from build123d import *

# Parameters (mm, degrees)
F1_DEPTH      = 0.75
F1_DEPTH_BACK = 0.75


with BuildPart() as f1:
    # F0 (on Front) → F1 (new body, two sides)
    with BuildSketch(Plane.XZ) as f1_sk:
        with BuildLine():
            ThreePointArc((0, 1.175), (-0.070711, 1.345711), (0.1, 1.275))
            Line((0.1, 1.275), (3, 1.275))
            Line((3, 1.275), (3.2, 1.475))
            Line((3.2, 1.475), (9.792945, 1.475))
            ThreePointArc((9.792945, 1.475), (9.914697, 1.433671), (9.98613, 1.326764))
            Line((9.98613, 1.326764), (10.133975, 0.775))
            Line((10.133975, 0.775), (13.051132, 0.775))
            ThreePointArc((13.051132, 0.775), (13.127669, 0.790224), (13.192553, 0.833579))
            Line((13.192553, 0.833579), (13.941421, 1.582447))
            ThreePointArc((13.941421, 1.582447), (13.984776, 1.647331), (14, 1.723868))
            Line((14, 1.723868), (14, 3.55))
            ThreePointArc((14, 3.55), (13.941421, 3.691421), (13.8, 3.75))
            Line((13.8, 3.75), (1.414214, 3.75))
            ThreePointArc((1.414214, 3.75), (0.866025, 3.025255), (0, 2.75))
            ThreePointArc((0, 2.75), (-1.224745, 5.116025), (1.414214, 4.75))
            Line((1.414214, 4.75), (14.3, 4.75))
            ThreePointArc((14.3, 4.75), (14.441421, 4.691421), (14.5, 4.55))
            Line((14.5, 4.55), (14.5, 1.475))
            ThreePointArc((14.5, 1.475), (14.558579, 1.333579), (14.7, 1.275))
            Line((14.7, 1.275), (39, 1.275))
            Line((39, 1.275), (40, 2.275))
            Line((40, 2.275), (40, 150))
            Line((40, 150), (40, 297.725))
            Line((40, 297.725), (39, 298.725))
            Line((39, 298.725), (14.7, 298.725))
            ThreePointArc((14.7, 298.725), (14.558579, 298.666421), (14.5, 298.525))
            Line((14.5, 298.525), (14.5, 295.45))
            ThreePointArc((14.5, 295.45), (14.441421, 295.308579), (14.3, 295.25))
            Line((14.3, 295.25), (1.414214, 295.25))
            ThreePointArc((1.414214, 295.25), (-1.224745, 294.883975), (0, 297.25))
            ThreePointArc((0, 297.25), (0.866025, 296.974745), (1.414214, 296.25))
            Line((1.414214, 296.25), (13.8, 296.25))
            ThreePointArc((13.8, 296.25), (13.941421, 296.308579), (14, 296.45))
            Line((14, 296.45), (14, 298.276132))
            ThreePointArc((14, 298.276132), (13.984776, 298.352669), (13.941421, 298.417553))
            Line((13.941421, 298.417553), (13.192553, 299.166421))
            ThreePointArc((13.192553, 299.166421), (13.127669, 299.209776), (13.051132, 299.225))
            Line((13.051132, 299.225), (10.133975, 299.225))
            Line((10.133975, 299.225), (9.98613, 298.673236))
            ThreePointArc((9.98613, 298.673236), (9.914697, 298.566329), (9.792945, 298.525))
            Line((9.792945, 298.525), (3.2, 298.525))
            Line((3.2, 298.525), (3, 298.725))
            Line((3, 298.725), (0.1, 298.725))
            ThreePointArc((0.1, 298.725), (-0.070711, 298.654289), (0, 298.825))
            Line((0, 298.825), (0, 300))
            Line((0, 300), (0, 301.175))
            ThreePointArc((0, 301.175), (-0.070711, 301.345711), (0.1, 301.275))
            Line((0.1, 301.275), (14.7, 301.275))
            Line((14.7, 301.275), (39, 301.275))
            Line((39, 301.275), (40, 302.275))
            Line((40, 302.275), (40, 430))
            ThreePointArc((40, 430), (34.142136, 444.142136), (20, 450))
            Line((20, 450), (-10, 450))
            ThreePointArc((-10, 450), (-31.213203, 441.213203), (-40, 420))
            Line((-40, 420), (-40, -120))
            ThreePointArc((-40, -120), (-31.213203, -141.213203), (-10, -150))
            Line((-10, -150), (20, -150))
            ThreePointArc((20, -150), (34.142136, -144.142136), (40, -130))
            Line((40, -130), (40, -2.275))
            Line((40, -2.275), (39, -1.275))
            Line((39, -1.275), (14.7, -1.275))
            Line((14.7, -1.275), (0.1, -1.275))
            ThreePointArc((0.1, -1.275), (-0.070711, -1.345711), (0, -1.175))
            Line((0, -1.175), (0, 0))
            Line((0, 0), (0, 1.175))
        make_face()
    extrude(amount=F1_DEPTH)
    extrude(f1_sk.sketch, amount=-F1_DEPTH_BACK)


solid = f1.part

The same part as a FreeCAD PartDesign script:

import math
import FreeCAD as App
import Part
import Sketcher
from FreeCAD import Vector

doc = App.newDocument("Part")
params = doc.addObject("Spreadsheet::Sheet", "Params")
for row, (alias, value) in enumerate([
    ("sketch1_radius", "19.999999 mm"),
    ("sketch1_radius2", "30.000001 mm"),
    ("sketch1_radius3", "0.1 mm"),
    ("sketch1_radius4", "0.199999 mm"),
    ("sketch1_radius5", "1.500002 mm"),
    ("pad1_length", "0.75 mm"),
    ("pad1_length2", "0.75 mm"),
], start=1):
    params.set(f"A{row}", alias)
    params.set(f"B{row}", "=" + value)
    params.setAlias(f"B{row}", alias)

body = doc.addObject("PartDesign::Body", "Body")

sketch1 = doc.addObject("Sketcher::SketchObject", "Sketch")
body.addObject(sketch1)
sketch1.AttachmentSupport = (doc.XZ_Plane, [""])
sketch1.MapMode = "FlatFace"
sketch1.addGeometry([
    Part.ArcOfCircle(Part.Circle(Vector(0, 1.275, 0), Vector(0, 0, 1), 0.1), math.radians(-0.000108), math.radians(270.000108)),
    Part.LineSegment(Vector(0.1, 1.275, 0), Vector(3, 1.275, 0)),
    Part.LineSegment(Vector(3, 1.275, 0), Vector(3.2, 1.475, 0)),
    Part.LineSegment(Vector(3.2, 1.475, 0), Vector(9.792945, 1.475, 0)),
    Part.ArcOfCircle(Part.Circle(Vector(9.792945, 1.275001, 0), Vector(0, 0, 1), 0.199999), math.radians(14.999923), math.radians(90.000101)),
    Part.LineSegment(Vector(9.98613, 1.326764, 0), Vector(10.133975, 0.775, 0)),
    Part.LineSegment(Vector(10.133975, 0.775, 0), Vector(13.051132, 0.775, 0)),
    Part.ArcOfCircle(Part.Circle(Vector(13.051134, 0.974994, 0), Vector(0, 0, 1), 0.199994), math.radians(-90.000486), math.radians(-44.999166)),
    Part.LineSegment(Vector(13.192553, 0.833579, 0), Vector(13.941421, 1.582447, 0)),
    Part.ArcOfCircle(Part.Circle(Vector(13.800006, 1.723866, 0), Vector(0, 0, 1), 0.199994), math.radians(-45.000834), math.radians(0.000486)),
    Part.LineSegment(Vector(14, 1.723868, 0), Vector(14, 3.55, 0)),
    Part.ArcOfCircle(Part.Circle(Vector(13.799999, 3.549999, 0), Vector(0, 0, 1), 0.200001), math.radians(0.000348), math.radians(89.999652)),
    Part.LineSegment(Vector(13.8, 3.75, 0), Vector(1.414214, 3.75, 0)),
    Part.ArcOfCircle(Part.Circle(Vector(-0.000001, 4.250002, 0), Vector(0, 0, 1), 1.500002), math.radians(-89.999971), math.radians(-19.471266)),
    Part.ArcOfCircle(Part.Circle(Vector(0, 4.25, 0), Vector(0, 0, 1), 1.5), math.radians(19.471216), math.radians(269.999988)),
    Part.LineSegment(Vector(1.414214, 4.75, 0), Vector(14.3, 4.75, 0)),
    Part.ArcOfCircle(Part.Circle(Vector(14.299999, 4.549999, 0), Vector(0, 0, 1), 0.200001), math.radians(0.000348), math.radians(89.999652)),
    Part.LineSegment(Vector(14.5, 4.55, 0), Vector(14.5, 1.475, 0)),
    Part.ArcOfCircle(Part.Circle(Vector(14.700001, 1.475001, 0), Vector(0, 0, 1), 0.200001), math.radians(-179.999652), math.radians(-90.000348)),
    Part.LineSegment(Vector(14.7, 1.275, 0), Vector(39, 1.275, 0)),
    Part.LineSegment(Vector(39, 1.275, 0), Vector(40, 2.275, 0)),
    Part.LineSegment(Vector(40, 2.275, 0), Vector(40, 297.725, 0)),
    Part.LineSegment(Vector(40, 297.725, 0), Vector(39, 298.725, 0)),
    Part.LineSegment(Vector(39, 298.725, 0), Vector(14.7, 298.725, 0)),
    Part.ArcOfCircle(Part.Circle(Vector(14.700001, 298.524999, 0), Vector(0, 0, 1), 0.200001), math.radians(90.000348), math.radians(179.999652)),
    Part.LineSegment(Vector(14.5, 298.525, 0), Vector(14.5, 295.45, 0)),
    Part.ArcOfCircle(Part.Circle(Vector(14.299999, 295.450001, 0), Vector(0, 0, 1), 0.200001), math.radians(-89.999652), math.radians(-0.000348)),
    Part.LineSegment(Vector(14.3, 295.25, 0), Vector(1.414214, 295.25, 0)),
    Part.ArcOfCircle(Part.Circle(Vector(0, 295.75, 0), Vector(0, 0, 1), 1.5), math.radians(90.000012), math.radians(340.528784)),
    Part.ArcOfCircle(Part.Circle(Vector(-0.000001, 295.749998, 0), Vector(0, 0, 1), 1.500002), math.radians(19.471266), math.radians(89.999971)),
    Part.LineSegment(Vector(1.414214, 296.25, 0), Vector(13.8, 296.25, 0)),
    Part.ArcOfCircle(Part.Circle(Vector(13.799999, 296.450001, 0), Vector(0, 0, 1), 0.200001), math.radians(-89.999652), math.radians(-0.000348)),
    Part.LineSegment(Vector(14, 296.45, 0), Vector(14, 298.276132, 0)),
    Part.ArcOfCircle(Part.Circle(Vector(13.800006, 298.276134, 0), Vector(0, 0, 1), 0.199994), math.radians(-0.000486), math.radians(45.000834)),
    Part.LineSegment(Vector(13.941421, 298.417553, 0), Vector(13.192553, 299.166421, 0)),
    Part.ArcOfCircle(Part.Circle(Vector(13.051134, 299.025006, 0), Vector(0, 0, 1), 0.199994), math.radians(44.999166), math.radians(90.000486)),
    Part.LineSegment(Vector(13.051132, 299.225, 0), Vector(10.133975, 299.225, 0)),
    Part.LineSegment(Vector(10.133975, 299.225, 0), Vector(9.98613, 298.673236, 0)),
    Part.ArcOfCircle(Part.Circle(Vector(9.792945, 298.724999, 0), Vector(0, 0, 1), 0.199999), math.radians(-90.000101), math.radians(-14.999923)),
    Part.LineSegment(Vector(9.792945, 298.525, 0), Vector(3.2, 298.525, 0)),
    Part.LineSegment(Vector(3.2, 298.525, 0), Vector(3, 298.725, 0)),
    Part.LineSegment(Vector(3, 298.725, 0), Vector(0.1, 298.725, 0)),
    Part.ArcOfCircle(Part.Circle(Vector(0, 298.725, 0), Vector(0, 0, 1), 0.1), math.radians(89.999892), math.radians(360.000108)),
    Part.LineSegment(Vector(0, 298.825, 0), Vector(0, 301.175, 0)),
    Part.ArcOfCircle(Part.Circle(Vector(0, 301.275, 0), Vector(0, 0, 1), 0.1), math.radians(-0.000108), math.radians(270.000108)),
    Part.LineSegment(Vector(0.1, 301.275, 0), Vector(39, 301.275, 0)),
    Part.LineSegment(Vector(39, 301.275, 0), Vector(40, 302.275, 0)),
    Part.LineSegment(Vector(40, 302.275, 0), Vector(40, 430, 0)),
    Part.ArcOfCircle(Part.Circle(Vector(20.000001, 430.000001, 0), Vector(0, 0, 1), 19.999999), math.radians(-0.000004), math.radians(90.000004)),
    Part.LineSegment(Vector(20, 450, 0), Vector(-10, 450, 0)),
    Part.ArcOfCircle(Part.Circle(Vector(-9.999999, 419.999999, 0), Vector(0, 0, 1), 30.000001), math.radians(90.000003), math.radians(179.999997)),
    Part.LineSegment(Vector(-40, 420, 0), Vector(-40, -120, 0)),
    Part.ArcOfCircle(Part.Circle(Vector(-9.999999, -119.999999, 0), Vector(0, 0, 1), 30.000001), math.radians(-179.999997), math.radians(-90.000003)),
    Part.LineSegment(Vector(-10, -150, 0), Vector(20, -150, 0)),
    Part.ArcOfCircle(Part.Circle(Vector(20.000001, -130.000001, 0), Vector(0, 0, 1), 19.999999), math.radians(-90.000004), math.radians(0.000004)),
    Part.LineSegment(Vector(40, -130, 0), Vector(40, -2.275, 0)),
    Part.LineSegment(Vector(40, -2.275, 0), Vector(39, -1.275, 0)),
    Part.LineSegment(Vector(39, -1.275, 0), Vector(0.1, -1.275, 0)),
    Part.ArcOfCircle(Part.Circle(Vector(0, -1.275, 0), Vector(0, 0, 1), 0.1), math.radians(89.999892), math.radians(360.000108)),
    Part.LineSegment(Vector(0, -1.175, 0), Vector(0, 1.175, 0)),
], False)
sketch1.addConstraint([
    Sketcher.Constraint("Coincident", 0, 1, 1, 1),
    Sketcher.Constraint("Coincident", 1, 2, 2, 1),
    Sketcher.Constraint("Coincident", 2, 2, 3, 1),
    Sketcher.Constraint("Tangent", 3, 2, 4, 2),
    Sketcher.Constraint("Tangent", 4, 1, 5, 1),
    Sketcher.Constraint("Coincident", 5, 2, 6, 1),
    Sketcher.Constraint("Coincident", 6, 2, 7, 1),
    Sketcher.Constraint("Coincident", 7, 2, 8, 1),
    Sketcher.Constraint("Coincident", 8, 2, 9, 1),
    Sketcher.Constraint("Coincident", 9, 2, 10, 1),
    Sketcher.Constraint("Coincident", 10, 2, 11, 1),
    Sketcher.Constraint("Coincident", 11, 2, 12, 1),
    Sketcher.Constraint("Coincident", 12, 2, 13, 2),
    Sketcher.Constraint("Tangent", 13, 1, 14, 2),
    Sketcher.Constraint("Coincident", 14, 1, 15, 1),
    Sketcher.Constraint("Coincident", 15, 2, 16, 2),
    Sketcher.Constraint("Coincident", 16, 1, 17, 1),
    Sketcher.Constraint("Coincident", 17, 2, 18, 1),
    Sketcher.Constraint("Coincident", 18, 2, 19, 1),
    Sketcher.Constraint("Coincident", 19, 2, 20, 1),
    Sketcher.Constraint("Coincident", 20, 2, 21, 1),
    Sketcher.Constraint("Coincident", 21, 2, 22, 1),
    Sketcher.Constraint("Coincident", 22, 2, 23, 1),
    Sketcher.Constraint("Coincident", 23, 2, 24, 1),
    Sketcher.Constraint("Coincident", 24, 2, 25, 1),
    Sketcher.Constraint("Coincident", 25, 2, 26, 2),
    Sketcher.Constraint("Coincident", 26, 1, 27, 1),
    Sketcher.Constraint("Coincident", 27, 2, 28, 2),
    Sketcher.Constraint("Tangent", 28, 1, 29, 2),
    Sketcher.Constraint("Coincident", 29, 1, 30, 1),
    Sketcher.Constraint("Coincident", 30, 2, 31, 1),
    Sketcher.Constraint("Coincident", 31, 2, 32, 1),
    Sketcher.Constraint("Coincident", 32, 2, 33, 1),
    Sketcher.Constraint("Coincident", 33, 2, 34, 1),
    Sketcher.Constraint("Coincident", 34, 2, 35, 1),
    Sketcher.Constraint("Coincident", 35, 2, 36, 1),
    Sketcher.Constraint("Coincident", 36, 2, 37, 1),
    Sketcher.Constraint("Tangent", 37, 2, 38, 2),
    Sketcher.Constraint("Tangent", 38, 1, 39, 1),
    Sketcher.Constraint("Coincident", 39, 2, 40, 1),
    Sketcher.Constraint("Coincident", 40, 2, 41, 1),
    Sketcher.Constraint("Coincident", 41, 2, 42, 2),
    Sketcher.Constraint("Coincident", 42, 1, 43, 1),
    Sketcher.Constraint("Coincident", 43, 2, 44, 2),
    Sketcher.Constraint("Coincident", 44, 1, 45, 1),
    Sketcher.Constraint("Coincident", 45, 2, 46, 1),
    Sketcher.Constraint("Coincident", 46, 2, 47, 1),
    Sketcher.Constraint("Tangent", 47, 2, 48, 1),
    Sketcher.Constraint("Tangent", 48, 2, 49, 1),
    Sketcher.Constraint("Tangent", 49, 2, 50, 1),
    Sketcher.Constraint("Tangent", 50, 2, 51, 1),
    Sketcher.Constraint("Tangent", 51, 2, 52, 1),
    Sketcher.Constraint("Tangent", 52, 2, 53, 1),
    Sketcher.Constraint("Tangent", 53, 2, 54, 1),
    Sketcher.Constraint("Tangent", 54, 2, 55, 1),
    Sketcher.Constraint("Coincident", 55, 2, 56, 1),
    Sketcher.Constraint("Coincident", 56, 2, 57, 1),
    Sketcher.Constraint("Coincident", 57, 2, 58, 2),
    Sketcher.Constraint("Coincident", 58, 1, 59, 1),
    Sketcher.Constraint("Coincident", 59, 2, 0, 2),
    Sketcher.Constraint("Horizontal", 1),
    Sketcher.Constraint("Horizontal", 3),
    Sketcher.Constraint("Horizontal", 6),
    Sketcher.Constraint("Vertical", 10),
    Sketcher.Constraint("Horizontal", 12),
    Sketcher.Constraint("Horizontal", 15),
    Sketcher.Constraint("Vertical", 17),
    Sketcher.Constraint("Horizontal", 19),
    Sketcher.Constraint("Vertical", 21),
    Sketcher.Constraint("Horizontal", 23),
    Sketcher.Constraint("Vertical", 25),
    Sketcher.Constraint("Horizontal", 27),
    Sketcher.Constraint("Horizontal", 30),
    Sketcher.Constraint("Vertical", 32),
    Sketcher.Constraint("Horizontal", 36),
    Sketcher.Constraint("Horizontal", 39),
    Sketcher.Constraint("Horizontal", 41),
    Sketcher.Constraint("Vertical", 43),
    Sketcher.Constraint("Horizontal", 45),
    Sketcher.Constraint("Vertical", 47),
    Sketcher.Constraint("Horizontal", 49),
    Sketcher.Constraint("Vertical", 51),
    Sketcher.Constraint("Horizontal", 53),
    Sketcher.Constraint("Vertical", 55),
    Sketcher.Constraint("Horizontal", 57),
    Sketcher.Constraint("Vertical", 59),
    Sketcher.Constraint("Equal", 7, 9),
    Sketcher.Constraint("Equal", 4, 11),
    Sketcher.Constraint("Equal", 13, 14),
    Sketcher.Constraint("Equal", 11, 16),
    Sketcher.Constraint("Equal", 16, 18),
    Sketcher.Constraint("Equal", 18, 24),
    Sketcher.Constraint("Equal", 24, 26),
    Sketcher.Constraint("Equal", 14, 28),
    Sketcher.Constraint("Equal", 28, 29),
    Sketcher.Constraint("Equal", 26, 31),
    Sketcher.Constraint("Equal", 9, 33),
    Sketcher.Constraint("Equal", 33, 35),
    Sketcher.Constraint("Equal", 31, 38),
    Sketcher.Constraint("Equal", 0, 42),
    Sketcher.Constraint("Equal", 42, 44),
    Sketcher.Constraint("Equal", 50, 52),
    Sketcher.Constraint("Equal", 48, 54),
    Sketcher.Constraint("Equal", 44, 58),
    Sketcher.Constraint("Symmetric", 0, 3, 58, 3, -1, 1),
    Sketcher.Constraint("Symmetric", 20, 2, 55, 2, -1),
    Sketcher.Constraint("Symmetric", 19, 2, 56, 2, -1),
    Sketcher.Constraint("Symmetric", 0, 1, 57, 2, -1),
    Sketcher.Constraint("PointOnObject", 13, 3, -2),
    Sketcher.Constraint("PointOnObject", 28, 3, -2),
    Sketcher.Constraint("PointOnObject", 42, 3, -2),
    Sketcher.Constraint("PointOnObject", 44, 3, -2),
    Sketcher.Constraint("PointOnObject", 13, 1, -2),
    Sketcher.Constraint("PointOnObject", 28, 1, -2),
    Sketcher.Constraint("PointOnObject", 42, 1, -2),
    Sketcher.Constraint("PointOnObject", 58, 1, -2),
    Sketcher.Constraint("Parallel", 2, 8),
    Sketcher.Constraint("Parallel", 8, 20),
    Sketcher.Constraint("Perpendicular", 20, 22),
    Sketcher.Constraint("Parallel", 22, 34),
    Sketcher.Constraint("Parallel", 34, 40),
    Sketcher.Constraint("Perpendicular", 40, 46),
    Sketcher.Constraint("Perpendicular", 46, 56),
    Sketcher.Constraint("Horizontal", 0, 3, 4, 3),
    Sketcher.Constraint("Horizontal", 38, 3, 42, 3),
    Sketcher.Constraint("Horizontal", 4, 3, 0, 1),
    Sketcher.Constraint("Horizontal", 11, 3, 10, 2),
    Sketcher.Constraint("Horizontal", 3, 2, 17, 2),
    Sketcher.Constraint("Horizontal", 42, 3, 22, 2),
    Sketcher.Constraint("Horizontal", 26, 3, 25, 2),
    Sketcher.Constraint("Horizontal", 33, 3, 32, 2),
    Sketcher.Constraint("Horizontal", 24, 2, 38, 1),
    Sketcher.Constraint("Horizontal", 23, 2, 40, 2),
    Sketcher.Constraint("Vertical", 18, 3, 24, 3),
    Sketcher.Constraint("Vertical", 11, 3, 31, 3),
    Sketcher.Constraint("Vertical", 7, 3, 35, 3),
    Sketcher.Constraint("Vertical", 4, 3, 38, 3),
    Sketcher.Constraint("Vertical", 48, 3, 54, 3),
    Sketcher.Constraint("Vertical", 35, 3, 6, 2),
    Sketcher.Constraint("Vertical", 31, 3, 11, 2),
    Sketcher.Constraint("Vertical", 12, 2, 14, 1),
    Sketcher.Constraint("Vertical", 26, 3, 15, 2),
    Sketcher.Constraint("Vertical", 24, 3, 18, 2),
    Sketcher.Constraint("Vertical", 19, 2, 22, 2),
    Sketcher.Constraint("Vertical", 18, 2, 23, 2),
    Sketcher.Constraint("Vertical", 15, 2, 26, 1),
    Sketcher.Constraint("Vertical", 14, 1, 27, 2),
    Sketcher.Constraint("Vertical", 27, 2, 29, 1),
    Sketcher.Constraint("Vertical", 11, 2, 30, 2),
    Sketcher.Constraint("Vertical", 8, 2, 33, 2),
    Sketcher.Constraint("Vertical", 7, 2, 34, 2),
    Sketcher.Constraint("Vertical", 6, 2, 35, 2),
    Sketcher.Constraint("Vertical", 5, 2, 36, 2),
    Sketcher.Constraint("Vertical", 4, 1, 37, 2),
    Sketcher.Constraint("Vertical", 2, 2, 39, 2),
    Sketcher.Constraint("Vertical", 22, 2, 45, 2),
    Sketcher.Constraint("Equal", 17, 25),
    Sketcher.Constraint("Equal", 10, 32),
    Sketcher.Constraint("Equal", 47, 55),
    Sketcher.Constraint("Equal", 43, 59),
    Sketcher.Constraint("Radius", 48, 19.999999),
    Sketcher.Constraint("Radius", 50, 30.000001),
    Sketcher.Constraint("Radius", 0, 0.1),
    Sketcher.Constraint("Radius", 4, 0.199999),
    Sketcher.Constraint("Radius", 13, 1.500002),
    Sketcher.Constraint("DistanceX", 49, 2, 49, 1, 30.0),
    Sketcher.Constraint("DistanceY", 51, 2, 51, 1, 540.0),
    Sketcher.Constraint("DistanceX", 1, 1, 1, 2, 2.9),
    Sketcher.Constraint("DistanceX", 19, 1, 19, 2, 24.3),
    Sketcher.Constraint("DistanceX", 45, 1, 45, 2, 38.9),
    Sketcher.Constraint("DistanceX", -1, 1, 48, 3, 20.000001),
    Sketcher.Constraint("DistanceY", -1, 1, 48, 3, 430.000001),
    Sketcher.Constraint("DistanceX", -1, 1, 9, 2, 14.0),
    Sketcher.Constraint("DistanceY", 21, 1, 21, 2, 295.45),
    Sketcher.Constraint("DistanceY", 43, 1, 43, 2, 2.35),
    Sketcher.Constraint("DistanceY", 17, 2, 17, 1, 3.075),
    Sketcher.Constraint("DistanceY", -1, 1, 11, 3, 3.549999),
    Sketcher.Constraint("DistanceY", -1, 1, 13, 3, 4.250002),
    Sketcher.Constraint("DistanceY", -1, 1, 31, 2, 296.45),
    Sketcher.Constraint("DistanceY", -1, 1, 5, 2, 0.775),
    Sketcher.Constraint("Radius", 7, 0.199994),
    Sketcher.Constraint("DistanceY", 10, 1, 10, 2, 1.826132),
    Sketcher.Constraint("Distance", 5, 0.571228),
    Sketcher.Constraint("Distance", 8, 1.059059),
    Sketcher.Constraint("DistanceX", 3, 1, 3, 2, 6.592945),
    Sketcher.Constraint("DistanceY", -1, 1, 7, 2, 0.833579),
])
sketch1.setExpression("Constraints[160]", "Params.sketch1_radius")
sketch1.setExpression("Constraints[161]", "Params.sketch1_radius2")
sketch1.setExpression("Constraints[162]", "Params.sketch1_radius3")
sketch1.setExpression("Constraints[163]", "Params.sketch1_radius4")
sketch1.setExpression("Constraints[164]", "Params.sketch1_radius5")
pad1 = doc.addObject("PartDesign::Pad", "Pad")
body.addObject(pad1)
pad1.Profile = sketch1
pad1.Type = "TwoLengths"
pad1.setExpression("Length", "Params.pad1_length")
pad1.setExpression("Length2", "Params.pad1_length2")

doc.recompute()
